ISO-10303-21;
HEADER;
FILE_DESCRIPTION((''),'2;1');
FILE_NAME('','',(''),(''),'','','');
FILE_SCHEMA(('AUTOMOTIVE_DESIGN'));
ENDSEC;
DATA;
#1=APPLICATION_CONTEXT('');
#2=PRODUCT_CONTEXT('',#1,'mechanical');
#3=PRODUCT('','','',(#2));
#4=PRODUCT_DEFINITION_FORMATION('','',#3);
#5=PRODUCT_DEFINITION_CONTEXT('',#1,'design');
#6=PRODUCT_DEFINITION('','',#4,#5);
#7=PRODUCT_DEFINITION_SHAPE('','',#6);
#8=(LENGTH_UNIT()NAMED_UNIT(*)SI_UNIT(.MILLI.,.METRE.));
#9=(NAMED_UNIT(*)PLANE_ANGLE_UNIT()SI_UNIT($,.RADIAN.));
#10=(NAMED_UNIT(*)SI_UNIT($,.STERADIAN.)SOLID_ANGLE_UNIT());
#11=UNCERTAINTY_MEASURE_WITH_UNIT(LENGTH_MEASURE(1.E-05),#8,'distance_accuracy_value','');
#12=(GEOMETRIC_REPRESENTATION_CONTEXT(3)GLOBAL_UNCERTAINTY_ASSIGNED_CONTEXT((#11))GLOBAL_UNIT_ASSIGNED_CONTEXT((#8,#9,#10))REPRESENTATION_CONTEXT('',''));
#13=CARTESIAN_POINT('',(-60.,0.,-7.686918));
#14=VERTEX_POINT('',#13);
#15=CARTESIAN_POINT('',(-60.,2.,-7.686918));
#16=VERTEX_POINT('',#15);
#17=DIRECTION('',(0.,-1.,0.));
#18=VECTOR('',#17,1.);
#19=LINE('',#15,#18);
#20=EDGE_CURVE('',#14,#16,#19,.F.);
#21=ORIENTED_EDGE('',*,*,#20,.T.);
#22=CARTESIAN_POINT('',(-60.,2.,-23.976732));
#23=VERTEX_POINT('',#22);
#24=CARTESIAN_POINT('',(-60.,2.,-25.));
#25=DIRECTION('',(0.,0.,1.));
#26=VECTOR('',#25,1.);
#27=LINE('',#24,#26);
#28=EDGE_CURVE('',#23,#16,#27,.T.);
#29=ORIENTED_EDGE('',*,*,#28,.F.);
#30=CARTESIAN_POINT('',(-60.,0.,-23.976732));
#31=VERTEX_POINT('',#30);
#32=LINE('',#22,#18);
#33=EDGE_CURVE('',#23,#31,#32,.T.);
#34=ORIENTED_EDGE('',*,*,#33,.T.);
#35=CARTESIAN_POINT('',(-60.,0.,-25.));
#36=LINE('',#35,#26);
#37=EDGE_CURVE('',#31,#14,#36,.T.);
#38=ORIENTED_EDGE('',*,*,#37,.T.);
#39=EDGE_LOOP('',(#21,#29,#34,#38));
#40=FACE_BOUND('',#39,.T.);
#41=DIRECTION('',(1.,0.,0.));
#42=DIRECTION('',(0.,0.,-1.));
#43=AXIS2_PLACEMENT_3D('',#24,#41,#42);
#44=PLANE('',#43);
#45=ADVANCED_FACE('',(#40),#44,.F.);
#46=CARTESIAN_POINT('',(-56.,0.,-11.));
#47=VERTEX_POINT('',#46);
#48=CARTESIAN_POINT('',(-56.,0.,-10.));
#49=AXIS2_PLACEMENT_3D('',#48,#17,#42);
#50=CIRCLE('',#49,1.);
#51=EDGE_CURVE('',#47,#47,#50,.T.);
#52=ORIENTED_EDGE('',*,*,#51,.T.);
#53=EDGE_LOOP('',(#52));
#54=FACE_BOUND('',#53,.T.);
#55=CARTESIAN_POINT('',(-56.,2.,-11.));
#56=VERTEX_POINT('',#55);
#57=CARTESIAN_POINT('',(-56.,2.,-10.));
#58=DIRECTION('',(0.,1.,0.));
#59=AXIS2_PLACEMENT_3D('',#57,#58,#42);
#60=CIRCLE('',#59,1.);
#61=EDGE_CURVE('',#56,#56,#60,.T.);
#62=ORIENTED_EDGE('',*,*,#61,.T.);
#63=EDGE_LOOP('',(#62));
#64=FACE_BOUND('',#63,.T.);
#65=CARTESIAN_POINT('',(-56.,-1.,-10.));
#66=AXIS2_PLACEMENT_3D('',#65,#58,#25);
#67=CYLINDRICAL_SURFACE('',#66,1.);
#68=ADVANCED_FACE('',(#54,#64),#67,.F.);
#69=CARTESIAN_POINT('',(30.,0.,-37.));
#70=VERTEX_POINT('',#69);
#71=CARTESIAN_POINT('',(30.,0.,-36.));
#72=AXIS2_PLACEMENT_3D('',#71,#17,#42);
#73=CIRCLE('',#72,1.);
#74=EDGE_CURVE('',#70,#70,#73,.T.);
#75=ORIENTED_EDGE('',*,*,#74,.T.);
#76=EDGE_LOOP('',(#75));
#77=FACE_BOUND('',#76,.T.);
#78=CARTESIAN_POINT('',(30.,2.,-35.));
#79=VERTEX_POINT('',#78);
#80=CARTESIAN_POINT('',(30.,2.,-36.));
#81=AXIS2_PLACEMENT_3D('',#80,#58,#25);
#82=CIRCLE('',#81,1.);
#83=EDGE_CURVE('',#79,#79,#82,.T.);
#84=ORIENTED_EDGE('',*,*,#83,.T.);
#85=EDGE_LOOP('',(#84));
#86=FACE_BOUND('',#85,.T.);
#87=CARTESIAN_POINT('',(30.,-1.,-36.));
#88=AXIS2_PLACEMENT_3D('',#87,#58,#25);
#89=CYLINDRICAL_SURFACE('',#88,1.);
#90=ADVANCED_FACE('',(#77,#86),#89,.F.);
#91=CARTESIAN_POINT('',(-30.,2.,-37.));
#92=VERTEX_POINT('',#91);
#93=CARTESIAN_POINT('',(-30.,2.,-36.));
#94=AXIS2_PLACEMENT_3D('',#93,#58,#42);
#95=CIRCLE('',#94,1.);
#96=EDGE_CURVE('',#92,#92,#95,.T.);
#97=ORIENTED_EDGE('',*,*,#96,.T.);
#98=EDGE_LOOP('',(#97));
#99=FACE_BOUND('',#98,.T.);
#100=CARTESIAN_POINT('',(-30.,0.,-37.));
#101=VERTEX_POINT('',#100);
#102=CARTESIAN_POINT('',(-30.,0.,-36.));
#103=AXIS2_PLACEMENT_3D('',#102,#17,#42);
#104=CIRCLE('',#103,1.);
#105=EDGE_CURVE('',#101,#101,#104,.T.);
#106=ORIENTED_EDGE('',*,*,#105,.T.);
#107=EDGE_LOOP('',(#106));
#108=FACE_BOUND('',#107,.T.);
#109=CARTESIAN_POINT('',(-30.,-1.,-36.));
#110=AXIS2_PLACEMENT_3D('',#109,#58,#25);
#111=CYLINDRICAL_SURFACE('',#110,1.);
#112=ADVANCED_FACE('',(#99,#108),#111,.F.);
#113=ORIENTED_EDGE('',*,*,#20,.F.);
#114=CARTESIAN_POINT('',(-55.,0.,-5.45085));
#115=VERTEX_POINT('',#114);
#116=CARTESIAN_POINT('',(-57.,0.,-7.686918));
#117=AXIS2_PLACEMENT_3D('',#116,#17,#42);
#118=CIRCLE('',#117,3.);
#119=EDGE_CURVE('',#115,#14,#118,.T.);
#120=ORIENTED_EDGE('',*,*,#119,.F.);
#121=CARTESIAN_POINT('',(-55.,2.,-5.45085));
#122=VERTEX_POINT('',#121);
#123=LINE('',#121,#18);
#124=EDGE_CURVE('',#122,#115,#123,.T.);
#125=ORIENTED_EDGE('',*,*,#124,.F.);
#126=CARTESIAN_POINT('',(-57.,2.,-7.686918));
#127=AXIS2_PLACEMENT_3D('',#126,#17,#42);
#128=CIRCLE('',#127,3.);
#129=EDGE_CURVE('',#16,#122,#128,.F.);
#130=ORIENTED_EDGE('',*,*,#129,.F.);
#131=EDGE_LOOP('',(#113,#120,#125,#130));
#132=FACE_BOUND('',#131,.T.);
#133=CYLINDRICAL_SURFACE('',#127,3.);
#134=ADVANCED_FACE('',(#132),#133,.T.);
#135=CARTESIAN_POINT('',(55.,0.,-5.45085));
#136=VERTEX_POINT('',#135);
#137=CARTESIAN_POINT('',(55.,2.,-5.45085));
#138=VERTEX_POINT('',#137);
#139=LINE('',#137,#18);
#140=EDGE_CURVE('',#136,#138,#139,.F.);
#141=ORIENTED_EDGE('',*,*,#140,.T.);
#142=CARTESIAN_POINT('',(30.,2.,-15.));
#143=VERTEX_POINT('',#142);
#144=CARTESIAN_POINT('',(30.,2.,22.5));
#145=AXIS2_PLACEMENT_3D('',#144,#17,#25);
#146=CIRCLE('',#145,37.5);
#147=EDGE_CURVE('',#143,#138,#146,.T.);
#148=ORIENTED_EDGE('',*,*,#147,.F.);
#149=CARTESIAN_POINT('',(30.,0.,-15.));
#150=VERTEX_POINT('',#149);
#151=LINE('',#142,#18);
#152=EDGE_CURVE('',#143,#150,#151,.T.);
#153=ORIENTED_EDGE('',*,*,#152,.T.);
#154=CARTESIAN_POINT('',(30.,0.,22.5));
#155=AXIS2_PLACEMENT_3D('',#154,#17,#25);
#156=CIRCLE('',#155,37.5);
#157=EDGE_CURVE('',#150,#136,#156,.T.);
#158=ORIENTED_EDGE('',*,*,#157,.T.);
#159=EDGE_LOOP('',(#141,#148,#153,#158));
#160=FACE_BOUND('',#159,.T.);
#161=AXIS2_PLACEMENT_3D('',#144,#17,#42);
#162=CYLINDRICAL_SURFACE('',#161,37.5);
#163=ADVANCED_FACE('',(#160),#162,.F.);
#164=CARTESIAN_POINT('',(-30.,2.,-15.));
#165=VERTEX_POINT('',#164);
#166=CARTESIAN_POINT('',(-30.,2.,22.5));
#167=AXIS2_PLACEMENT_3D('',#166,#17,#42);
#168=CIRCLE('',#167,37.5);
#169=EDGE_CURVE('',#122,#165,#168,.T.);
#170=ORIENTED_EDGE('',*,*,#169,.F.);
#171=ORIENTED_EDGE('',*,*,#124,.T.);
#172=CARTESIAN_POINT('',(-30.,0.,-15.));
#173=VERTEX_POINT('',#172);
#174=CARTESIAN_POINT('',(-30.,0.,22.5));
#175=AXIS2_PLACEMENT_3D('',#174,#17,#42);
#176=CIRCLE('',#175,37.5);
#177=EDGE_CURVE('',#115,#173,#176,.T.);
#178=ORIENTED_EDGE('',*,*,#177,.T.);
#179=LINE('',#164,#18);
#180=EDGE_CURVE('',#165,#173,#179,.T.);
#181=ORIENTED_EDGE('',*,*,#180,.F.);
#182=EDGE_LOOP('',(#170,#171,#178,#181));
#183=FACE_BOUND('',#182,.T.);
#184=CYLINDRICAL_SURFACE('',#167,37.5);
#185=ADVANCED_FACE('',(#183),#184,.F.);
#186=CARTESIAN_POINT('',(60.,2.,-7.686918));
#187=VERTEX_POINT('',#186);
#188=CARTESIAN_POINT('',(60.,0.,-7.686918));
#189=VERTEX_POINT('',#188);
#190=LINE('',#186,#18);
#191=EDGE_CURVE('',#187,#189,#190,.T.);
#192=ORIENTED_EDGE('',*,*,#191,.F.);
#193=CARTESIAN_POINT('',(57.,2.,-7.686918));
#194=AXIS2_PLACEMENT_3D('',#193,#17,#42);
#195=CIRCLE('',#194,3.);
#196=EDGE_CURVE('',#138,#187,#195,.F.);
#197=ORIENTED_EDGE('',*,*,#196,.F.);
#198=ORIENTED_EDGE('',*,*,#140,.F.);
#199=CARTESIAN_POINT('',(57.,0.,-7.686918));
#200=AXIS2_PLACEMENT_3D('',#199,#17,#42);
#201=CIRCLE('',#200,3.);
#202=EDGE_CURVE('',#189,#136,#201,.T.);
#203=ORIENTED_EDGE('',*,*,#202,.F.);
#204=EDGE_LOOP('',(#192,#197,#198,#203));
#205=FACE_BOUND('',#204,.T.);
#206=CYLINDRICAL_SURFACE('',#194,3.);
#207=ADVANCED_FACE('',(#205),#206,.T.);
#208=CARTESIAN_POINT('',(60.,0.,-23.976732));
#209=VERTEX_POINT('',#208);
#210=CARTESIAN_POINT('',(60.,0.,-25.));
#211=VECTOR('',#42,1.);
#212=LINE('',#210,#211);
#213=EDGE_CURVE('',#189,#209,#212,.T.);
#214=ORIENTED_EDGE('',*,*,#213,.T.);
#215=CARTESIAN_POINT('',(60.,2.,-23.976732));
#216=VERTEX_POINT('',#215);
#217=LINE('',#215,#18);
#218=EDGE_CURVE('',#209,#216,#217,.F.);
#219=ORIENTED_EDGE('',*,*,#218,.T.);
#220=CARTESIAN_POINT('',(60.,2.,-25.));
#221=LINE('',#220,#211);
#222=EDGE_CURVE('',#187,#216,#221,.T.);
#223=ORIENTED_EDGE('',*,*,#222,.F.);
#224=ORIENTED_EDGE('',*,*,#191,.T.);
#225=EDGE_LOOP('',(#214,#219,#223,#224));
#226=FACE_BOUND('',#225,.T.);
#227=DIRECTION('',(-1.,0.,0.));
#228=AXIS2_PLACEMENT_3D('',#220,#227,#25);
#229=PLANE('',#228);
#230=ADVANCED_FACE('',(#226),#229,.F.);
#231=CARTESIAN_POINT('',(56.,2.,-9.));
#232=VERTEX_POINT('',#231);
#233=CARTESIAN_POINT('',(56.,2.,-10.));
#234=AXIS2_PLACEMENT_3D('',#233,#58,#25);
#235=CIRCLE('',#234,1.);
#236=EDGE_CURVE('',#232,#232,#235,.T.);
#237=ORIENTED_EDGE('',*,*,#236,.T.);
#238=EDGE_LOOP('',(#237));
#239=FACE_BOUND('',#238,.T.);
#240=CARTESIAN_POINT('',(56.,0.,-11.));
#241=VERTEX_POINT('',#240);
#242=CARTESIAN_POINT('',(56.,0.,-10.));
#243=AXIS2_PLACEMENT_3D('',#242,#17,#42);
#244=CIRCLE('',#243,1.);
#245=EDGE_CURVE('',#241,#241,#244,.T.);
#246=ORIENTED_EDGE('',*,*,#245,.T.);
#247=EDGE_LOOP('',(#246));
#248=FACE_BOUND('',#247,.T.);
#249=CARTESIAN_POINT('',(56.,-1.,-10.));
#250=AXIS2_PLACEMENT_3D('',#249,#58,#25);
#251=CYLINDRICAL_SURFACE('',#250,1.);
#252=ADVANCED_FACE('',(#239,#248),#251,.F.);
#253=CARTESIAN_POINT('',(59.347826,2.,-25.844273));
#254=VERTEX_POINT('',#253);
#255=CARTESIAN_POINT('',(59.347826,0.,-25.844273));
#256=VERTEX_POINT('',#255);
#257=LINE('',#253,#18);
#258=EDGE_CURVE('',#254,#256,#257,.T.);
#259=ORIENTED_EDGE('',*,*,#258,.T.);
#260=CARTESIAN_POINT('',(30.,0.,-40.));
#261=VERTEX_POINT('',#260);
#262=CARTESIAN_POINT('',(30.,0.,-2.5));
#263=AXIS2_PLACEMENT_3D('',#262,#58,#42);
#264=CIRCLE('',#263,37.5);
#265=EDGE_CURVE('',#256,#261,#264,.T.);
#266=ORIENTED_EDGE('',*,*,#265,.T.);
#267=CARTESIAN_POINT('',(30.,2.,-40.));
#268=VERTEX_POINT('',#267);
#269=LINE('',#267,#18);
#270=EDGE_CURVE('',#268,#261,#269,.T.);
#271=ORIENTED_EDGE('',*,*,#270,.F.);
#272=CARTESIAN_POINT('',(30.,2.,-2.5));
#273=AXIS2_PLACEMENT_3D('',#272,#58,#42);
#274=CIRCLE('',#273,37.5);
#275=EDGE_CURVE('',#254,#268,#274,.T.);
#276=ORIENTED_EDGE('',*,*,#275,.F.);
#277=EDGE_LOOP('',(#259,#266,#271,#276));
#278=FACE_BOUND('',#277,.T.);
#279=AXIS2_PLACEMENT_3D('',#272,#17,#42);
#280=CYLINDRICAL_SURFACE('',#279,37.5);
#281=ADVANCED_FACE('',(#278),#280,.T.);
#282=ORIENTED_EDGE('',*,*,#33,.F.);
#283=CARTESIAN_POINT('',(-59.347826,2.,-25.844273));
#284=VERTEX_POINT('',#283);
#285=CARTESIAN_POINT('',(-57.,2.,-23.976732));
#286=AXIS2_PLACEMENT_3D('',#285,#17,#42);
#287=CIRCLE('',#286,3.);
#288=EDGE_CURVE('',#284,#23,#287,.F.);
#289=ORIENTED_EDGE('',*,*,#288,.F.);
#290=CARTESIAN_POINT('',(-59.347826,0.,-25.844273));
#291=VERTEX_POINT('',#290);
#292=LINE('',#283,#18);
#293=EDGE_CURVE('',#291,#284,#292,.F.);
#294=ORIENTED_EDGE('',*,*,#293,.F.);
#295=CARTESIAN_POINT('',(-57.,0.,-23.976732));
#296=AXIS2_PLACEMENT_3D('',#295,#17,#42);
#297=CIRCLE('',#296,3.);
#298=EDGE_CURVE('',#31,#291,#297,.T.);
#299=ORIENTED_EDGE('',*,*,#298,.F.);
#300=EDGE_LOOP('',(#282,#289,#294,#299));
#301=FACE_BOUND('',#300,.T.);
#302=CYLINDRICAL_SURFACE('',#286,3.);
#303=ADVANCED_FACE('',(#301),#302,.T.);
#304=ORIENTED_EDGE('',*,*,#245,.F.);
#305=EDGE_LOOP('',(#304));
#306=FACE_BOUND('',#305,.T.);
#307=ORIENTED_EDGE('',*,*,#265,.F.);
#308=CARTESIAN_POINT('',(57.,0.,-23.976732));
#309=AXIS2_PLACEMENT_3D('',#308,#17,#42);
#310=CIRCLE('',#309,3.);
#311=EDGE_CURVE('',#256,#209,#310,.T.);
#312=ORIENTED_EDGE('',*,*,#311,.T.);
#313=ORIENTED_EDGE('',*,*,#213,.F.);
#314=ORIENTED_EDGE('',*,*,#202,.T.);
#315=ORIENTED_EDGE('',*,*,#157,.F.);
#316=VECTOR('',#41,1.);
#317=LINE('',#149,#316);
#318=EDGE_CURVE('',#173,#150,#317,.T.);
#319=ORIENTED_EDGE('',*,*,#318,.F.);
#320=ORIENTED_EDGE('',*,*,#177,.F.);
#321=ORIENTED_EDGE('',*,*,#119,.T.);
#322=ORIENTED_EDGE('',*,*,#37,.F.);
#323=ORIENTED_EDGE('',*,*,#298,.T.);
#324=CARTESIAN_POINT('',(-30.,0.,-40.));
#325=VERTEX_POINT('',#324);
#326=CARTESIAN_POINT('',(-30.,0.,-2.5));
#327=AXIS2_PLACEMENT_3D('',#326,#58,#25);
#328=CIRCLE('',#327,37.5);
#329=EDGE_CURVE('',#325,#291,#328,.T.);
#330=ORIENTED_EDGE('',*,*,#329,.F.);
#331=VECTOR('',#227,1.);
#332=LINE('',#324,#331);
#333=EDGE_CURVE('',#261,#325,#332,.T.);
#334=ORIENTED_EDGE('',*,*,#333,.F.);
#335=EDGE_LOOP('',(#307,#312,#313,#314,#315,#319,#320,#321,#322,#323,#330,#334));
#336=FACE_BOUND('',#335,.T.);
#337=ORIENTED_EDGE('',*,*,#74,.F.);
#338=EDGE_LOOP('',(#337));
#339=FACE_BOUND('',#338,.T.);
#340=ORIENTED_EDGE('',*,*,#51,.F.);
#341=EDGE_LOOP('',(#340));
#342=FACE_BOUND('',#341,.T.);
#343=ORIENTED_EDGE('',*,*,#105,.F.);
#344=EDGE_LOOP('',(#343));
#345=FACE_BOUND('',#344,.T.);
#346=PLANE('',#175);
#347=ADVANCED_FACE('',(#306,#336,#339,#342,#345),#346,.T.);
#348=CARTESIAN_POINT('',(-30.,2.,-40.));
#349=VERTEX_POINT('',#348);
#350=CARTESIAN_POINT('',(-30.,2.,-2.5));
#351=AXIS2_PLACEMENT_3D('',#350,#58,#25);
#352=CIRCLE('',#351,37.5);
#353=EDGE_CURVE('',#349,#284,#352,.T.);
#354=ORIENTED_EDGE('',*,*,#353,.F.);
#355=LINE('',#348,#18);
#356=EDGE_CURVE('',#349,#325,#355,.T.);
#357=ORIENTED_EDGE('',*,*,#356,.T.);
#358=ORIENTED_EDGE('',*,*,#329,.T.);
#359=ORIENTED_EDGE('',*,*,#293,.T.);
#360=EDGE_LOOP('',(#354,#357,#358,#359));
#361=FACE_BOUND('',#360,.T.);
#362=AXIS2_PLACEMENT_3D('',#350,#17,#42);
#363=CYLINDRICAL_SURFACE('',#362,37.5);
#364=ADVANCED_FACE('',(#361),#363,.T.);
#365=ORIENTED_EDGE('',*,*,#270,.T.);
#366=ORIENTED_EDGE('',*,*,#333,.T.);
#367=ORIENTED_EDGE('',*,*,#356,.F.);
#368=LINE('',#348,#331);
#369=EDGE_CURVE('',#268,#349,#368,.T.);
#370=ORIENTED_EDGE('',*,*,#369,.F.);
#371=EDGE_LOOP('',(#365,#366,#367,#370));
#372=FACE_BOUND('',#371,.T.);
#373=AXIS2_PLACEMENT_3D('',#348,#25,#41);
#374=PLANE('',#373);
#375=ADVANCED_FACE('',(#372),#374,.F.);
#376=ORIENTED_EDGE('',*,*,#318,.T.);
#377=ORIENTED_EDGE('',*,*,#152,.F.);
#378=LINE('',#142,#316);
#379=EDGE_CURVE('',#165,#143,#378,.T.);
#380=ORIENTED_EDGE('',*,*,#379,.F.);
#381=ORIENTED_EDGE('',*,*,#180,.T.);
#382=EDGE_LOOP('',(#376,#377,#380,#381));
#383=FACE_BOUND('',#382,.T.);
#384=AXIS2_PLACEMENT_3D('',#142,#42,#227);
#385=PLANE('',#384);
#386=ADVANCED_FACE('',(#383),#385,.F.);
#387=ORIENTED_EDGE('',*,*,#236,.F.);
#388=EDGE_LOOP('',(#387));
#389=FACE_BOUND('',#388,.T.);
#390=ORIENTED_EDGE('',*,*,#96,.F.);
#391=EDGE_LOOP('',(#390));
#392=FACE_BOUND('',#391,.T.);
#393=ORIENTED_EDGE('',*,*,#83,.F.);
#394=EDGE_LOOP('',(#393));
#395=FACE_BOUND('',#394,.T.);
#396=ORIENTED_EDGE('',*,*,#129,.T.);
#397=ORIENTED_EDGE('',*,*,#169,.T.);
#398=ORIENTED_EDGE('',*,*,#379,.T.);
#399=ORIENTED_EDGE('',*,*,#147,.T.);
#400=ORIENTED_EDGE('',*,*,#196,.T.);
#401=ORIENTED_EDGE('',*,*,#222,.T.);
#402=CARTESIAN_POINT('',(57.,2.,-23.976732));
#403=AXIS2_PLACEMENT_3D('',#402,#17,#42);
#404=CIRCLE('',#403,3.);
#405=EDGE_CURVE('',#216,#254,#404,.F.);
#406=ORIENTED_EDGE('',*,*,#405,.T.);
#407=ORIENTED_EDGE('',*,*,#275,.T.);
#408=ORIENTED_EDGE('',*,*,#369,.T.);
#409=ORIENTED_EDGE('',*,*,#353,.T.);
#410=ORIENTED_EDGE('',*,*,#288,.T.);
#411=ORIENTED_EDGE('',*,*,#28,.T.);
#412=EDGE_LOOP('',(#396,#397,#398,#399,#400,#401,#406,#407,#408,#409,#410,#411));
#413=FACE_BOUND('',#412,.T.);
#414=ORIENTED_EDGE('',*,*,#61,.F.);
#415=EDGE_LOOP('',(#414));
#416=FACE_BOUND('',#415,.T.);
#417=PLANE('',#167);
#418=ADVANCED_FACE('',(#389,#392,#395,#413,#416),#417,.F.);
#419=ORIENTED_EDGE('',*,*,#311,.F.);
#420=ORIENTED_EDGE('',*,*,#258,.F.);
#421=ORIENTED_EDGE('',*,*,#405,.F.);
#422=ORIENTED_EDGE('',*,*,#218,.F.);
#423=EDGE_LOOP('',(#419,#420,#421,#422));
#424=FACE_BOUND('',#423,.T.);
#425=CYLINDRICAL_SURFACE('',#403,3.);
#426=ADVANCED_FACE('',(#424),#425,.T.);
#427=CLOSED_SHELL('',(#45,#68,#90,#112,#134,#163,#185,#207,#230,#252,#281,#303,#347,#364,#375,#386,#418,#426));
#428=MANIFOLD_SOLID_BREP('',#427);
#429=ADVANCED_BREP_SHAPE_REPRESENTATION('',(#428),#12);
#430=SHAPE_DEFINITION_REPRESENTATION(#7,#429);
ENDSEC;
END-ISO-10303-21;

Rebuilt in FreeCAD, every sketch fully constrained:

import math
import FreeCAD as App
import Part
import Sketcher

V = App.Vector


def edges_at(feature, points):
    """Names of the edges that pass closest to the given points."""
    edges = feature.Shape.Edges
    near = lambda p: min(range(len(edges)), key=lambda i: edges[i].distToShape(Part.Vertex(*p))[0])
    return sorted({f"Edge{near(p) + 1}" for p in points})

doc = App.newDocument("Part")
body = doc.addObject("PartDesign::Body", "Body")

# Sketch on XZ plane
sketch1 = doc.addObject("Sketcher::SketchObject", "Sketch")
body.addObject(sketch1)
sketch1.AttachmentSupport = (doc.XZ_Plane, [""])
sketch1.MapMode = "FlatFace"
sketch1.addGeometry([
    Part.LineSegment(V(30, -40, 0), V(-30, -40, 0)),  # 0
    Part.ArcOfCircle(Part.Circle(V(-30, -2.5, 0), V(0, 0, 1), 37.5), math.radians(-143.130102), math.radians(-90)),  # 1
    Part.LineSegment(V(-60, -25, 0), V(-60, 0, 0)),  # 2
    Part.ArcOfCircle(Part.Circle(V(-30, 22.5, 0), V(0, 0, 1), 37.5), math.radians(-143.130102), math.radians(-90)),  # 3
    Part.LineSegment(V(-30, -15, 0), V(30, -15, 0)),  # 4
    Part.ArcOfCircle(Part.Circle(V(30, 22.5, 0), V(0, 0, 1), 37.5), math.radians(-90), math.radians(-36.869898)),  # 5
    Part.LineSegment(V(60, 0, 0), V(60, -25, 0)),  # 6
    Part.ArcOfCircle(Part.Circle(V(30, -2.5, 0), V(0, 0, 1), 37.5), math.radians(-90), math.radians(-36.869898)),  # 7
], False)
sketch1.addConstraint([
    Sketcher.Constraint("Tangent", 0, 2, 1, 2),
    Sketcher.Constraint("Coincident", 1, 1, 2, 1),
    Sketcher.Constraint("Coincident", 2, 2, 3, 1),
    Sketcher.Constraint("Tangent", 3, 2, 4, 1),
    Sketcher.Constraint("Tangent", 4, 2, 5, 1),
    Sketcher.Constraint("Coincident", 5, 2, 6, 1),
    Sketcher.Constraint("Coincident", 6, 2, 7, 2),
    Sketcher.Constraint("Tangent", 7, 1, 0, 1),
    Sketcher.Constraint("Horizontal", 0),
    Sketcher.Constraint("Vertical", 2),
    Sketcher.Constraint("Horizontal", 4),
    Sketcher.Constraint("Vertical", 6),
    Sketcher.Constraint("Equal", 1, 3),
    Sketcher.Constraint("Equal", 3, 5),
    Sketcher.Constraint("Equal", 5, 7),
    Sketcher.Constraint("Symmetric", 2, 2, 5, 2, -1, 1),
    Sketcher.Constraint("PointOnObject", 2, 2, -1),
    Sketcher.Constraint("Horizontal", 1, 1, 6, 2),
    Sketcher.Constraint("Vertical", 1, 3, 3, 3),
    Sketcher.Constraint("Radius", 1, 37.5),
    Sketcher.Constraint("DistanceX", 0, 2, 0, 1, 60.0),
    Sketcher.Constraint("DistanceY", 2, 1, 2, 2, 25.0),
    Sketcher.Constraint("DistanceY", 0, 2, -1, 1, 40.0),
])
pad1 = doc.addObject("PartDesign::Pad", "Pad")
body.addObject(pad1)
pad1.Profile = sketch1
pad1.Length = 2
pad1.Reversed = True

# Sketch on XZ plane
sketch2 = doc.addObject("Sketcher::SketchObject", "Sketch001")
body.addObject(sketch2)
sketch2.AttachmentSupport = (doc.XZ_Plane, [""])
sketch2.MapMode = "FlatFace"
sketch2.AttachmentOffset = App.Placement(V(0, 0, -2), App.Rotation())
sketch2.addGeometry([
    Part.Circle(V(56, -10, 0), V(0, 0, 1), 1),
    Part.Circle(V(30, -36, 0), V(0, 0, 1), 1),
    Part.Circle(V(-56, -10, 0), V(0, 0, 1), 1),
    Part.Circle(V(-30, -36, 0), V(0, 0, 1), 1),
], False)
sketch2.addConstraint([
    Sketcher.Constraint("Equal", 0, 1),
    Sketcher.Constraint("Equal", 1, 2),
    Sketcher.Constraint("Equal", 2, 3),
    Sketcher.Constraint("Symmetric", 0, 3, 2, 3, -2),
    Sketcher.Constraint("Symmetric", 1, 3, 3, 3, -2),
    Sketcher.Constraint("Diameter", 0, 2.0),
    Sketcher.Constraint("DistanceX", -1, 1, 0, 3, 56.0),
    Sketcher.Constraint("DistanceY", 0, 3, -1, 1, 10.0),
    Sketcher.Constraint("DistanceX", -1, 1, 1, 3, 30.0),
    Sketcher.Constraint("DistanceY", 1, 3, -1, 1, 36.0),
])
pocket1 = doc.addObject("PartDesign::Pocket", "Pocket")
body.addObject(pocket1)
pocket1.Profile = sketch2
pocket1.Length = 3
pocket1.Reversed = True
doc.recompute()

fillet = doc.addObject("PartDesign::Fillet", "Fillet")
body.addObject(fillet)
fillet.Base = (pocket1, edges_at(pocket1, [
    (-60, 1, 0),
    (-60, 1, -25),
    (60, 1, -25),
    (60, 1, 0),
]))
fillet.Radius = 3

doc.recompute()
